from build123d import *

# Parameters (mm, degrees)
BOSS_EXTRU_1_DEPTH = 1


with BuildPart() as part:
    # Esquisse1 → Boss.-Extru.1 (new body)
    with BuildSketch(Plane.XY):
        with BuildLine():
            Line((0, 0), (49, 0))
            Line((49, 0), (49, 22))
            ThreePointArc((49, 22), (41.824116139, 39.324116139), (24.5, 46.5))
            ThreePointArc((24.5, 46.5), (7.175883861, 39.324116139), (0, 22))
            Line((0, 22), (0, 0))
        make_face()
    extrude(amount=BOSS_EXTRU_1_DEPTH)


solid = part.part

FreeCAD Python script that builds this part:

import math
import FreeCAD as App
import Part
import Sketcher
Q = App.Units.Quantity

doc = App.newDocument("Part")
body = doc.addObject("PartDesign::Body", "Body")

# Sketch on XY plane
sketch1 = doc.addObject("Sketcher::SketchObject", "Sketch")
body.addObject(sketch1)
sketch1.AttachmentSupport = (doc.XY_Plane, [""])
sketch1.MapMode = "FlatFace"
sketch1.addGeometry([
    Part.LineSegment(App.Vector(0, 0, 0), App.Vector(49, 0, 0)),  # 0
    Part.LineSegment(App.Vector(49, 0, 0), App.Vector(49, 22, 0)),  # 1
    Part.ArcOfCircle(Part.Circle(App.Vector(24, 22, 0), App.Vector(0, 0, 1), 24), math.radians(0), math.radians(90)),  # 2
    Part.ArcOfCircle(Part.Circle(App.Vector(24, 22, 0), App.Vector(0, 0, 1), 24), math.radians(90), math.radians(180)),  # 3
    Part.LineSegment(App.Vector(0, 22, 0), App.Vector(0, 0, 0)),  # 4
], False)
sketch1.addConstraint([
    Sketcher.Constraint("Coincident", 0, 2, 1, 1),
    Sketcher.Constraint("Tangent", 1, 2, 2, 1),
    Sketcher.Constraint("Tangent", 2, 2, 3, 1),
    Sketcher.Constraint("Tangent", 3, 2, 4, 1),
    Sketcher.Constraint("Coincident", 4, 2, 0, 1),
    Sketcher.Constraint("Horizontal", 0),
    Sketcher.Constraint("Vertical", 1),
    Sketcher.Constraint("Vertical", 4),
    Sketcher.Constraint("Coincident", 4, 2, -1, 1),
    Sketcher.Constraint("Equal", 2, 3),
    Sketcher.Constraint("Vertical", 3, 3, 2, 2),
    Sketcher.Constraint("Radius", 2, Q("24.5 mm")),
    Sketcher.Constraint("DistanceY", 1, 1, 1, 2, Q("22 mm")),
])
pad1 = doc.addObject("PartDesign::Pad", "Pad")
body.addObject(pad1)
pad1.Profile = sketch1
pad1.Length = 1

doc.recompute()
